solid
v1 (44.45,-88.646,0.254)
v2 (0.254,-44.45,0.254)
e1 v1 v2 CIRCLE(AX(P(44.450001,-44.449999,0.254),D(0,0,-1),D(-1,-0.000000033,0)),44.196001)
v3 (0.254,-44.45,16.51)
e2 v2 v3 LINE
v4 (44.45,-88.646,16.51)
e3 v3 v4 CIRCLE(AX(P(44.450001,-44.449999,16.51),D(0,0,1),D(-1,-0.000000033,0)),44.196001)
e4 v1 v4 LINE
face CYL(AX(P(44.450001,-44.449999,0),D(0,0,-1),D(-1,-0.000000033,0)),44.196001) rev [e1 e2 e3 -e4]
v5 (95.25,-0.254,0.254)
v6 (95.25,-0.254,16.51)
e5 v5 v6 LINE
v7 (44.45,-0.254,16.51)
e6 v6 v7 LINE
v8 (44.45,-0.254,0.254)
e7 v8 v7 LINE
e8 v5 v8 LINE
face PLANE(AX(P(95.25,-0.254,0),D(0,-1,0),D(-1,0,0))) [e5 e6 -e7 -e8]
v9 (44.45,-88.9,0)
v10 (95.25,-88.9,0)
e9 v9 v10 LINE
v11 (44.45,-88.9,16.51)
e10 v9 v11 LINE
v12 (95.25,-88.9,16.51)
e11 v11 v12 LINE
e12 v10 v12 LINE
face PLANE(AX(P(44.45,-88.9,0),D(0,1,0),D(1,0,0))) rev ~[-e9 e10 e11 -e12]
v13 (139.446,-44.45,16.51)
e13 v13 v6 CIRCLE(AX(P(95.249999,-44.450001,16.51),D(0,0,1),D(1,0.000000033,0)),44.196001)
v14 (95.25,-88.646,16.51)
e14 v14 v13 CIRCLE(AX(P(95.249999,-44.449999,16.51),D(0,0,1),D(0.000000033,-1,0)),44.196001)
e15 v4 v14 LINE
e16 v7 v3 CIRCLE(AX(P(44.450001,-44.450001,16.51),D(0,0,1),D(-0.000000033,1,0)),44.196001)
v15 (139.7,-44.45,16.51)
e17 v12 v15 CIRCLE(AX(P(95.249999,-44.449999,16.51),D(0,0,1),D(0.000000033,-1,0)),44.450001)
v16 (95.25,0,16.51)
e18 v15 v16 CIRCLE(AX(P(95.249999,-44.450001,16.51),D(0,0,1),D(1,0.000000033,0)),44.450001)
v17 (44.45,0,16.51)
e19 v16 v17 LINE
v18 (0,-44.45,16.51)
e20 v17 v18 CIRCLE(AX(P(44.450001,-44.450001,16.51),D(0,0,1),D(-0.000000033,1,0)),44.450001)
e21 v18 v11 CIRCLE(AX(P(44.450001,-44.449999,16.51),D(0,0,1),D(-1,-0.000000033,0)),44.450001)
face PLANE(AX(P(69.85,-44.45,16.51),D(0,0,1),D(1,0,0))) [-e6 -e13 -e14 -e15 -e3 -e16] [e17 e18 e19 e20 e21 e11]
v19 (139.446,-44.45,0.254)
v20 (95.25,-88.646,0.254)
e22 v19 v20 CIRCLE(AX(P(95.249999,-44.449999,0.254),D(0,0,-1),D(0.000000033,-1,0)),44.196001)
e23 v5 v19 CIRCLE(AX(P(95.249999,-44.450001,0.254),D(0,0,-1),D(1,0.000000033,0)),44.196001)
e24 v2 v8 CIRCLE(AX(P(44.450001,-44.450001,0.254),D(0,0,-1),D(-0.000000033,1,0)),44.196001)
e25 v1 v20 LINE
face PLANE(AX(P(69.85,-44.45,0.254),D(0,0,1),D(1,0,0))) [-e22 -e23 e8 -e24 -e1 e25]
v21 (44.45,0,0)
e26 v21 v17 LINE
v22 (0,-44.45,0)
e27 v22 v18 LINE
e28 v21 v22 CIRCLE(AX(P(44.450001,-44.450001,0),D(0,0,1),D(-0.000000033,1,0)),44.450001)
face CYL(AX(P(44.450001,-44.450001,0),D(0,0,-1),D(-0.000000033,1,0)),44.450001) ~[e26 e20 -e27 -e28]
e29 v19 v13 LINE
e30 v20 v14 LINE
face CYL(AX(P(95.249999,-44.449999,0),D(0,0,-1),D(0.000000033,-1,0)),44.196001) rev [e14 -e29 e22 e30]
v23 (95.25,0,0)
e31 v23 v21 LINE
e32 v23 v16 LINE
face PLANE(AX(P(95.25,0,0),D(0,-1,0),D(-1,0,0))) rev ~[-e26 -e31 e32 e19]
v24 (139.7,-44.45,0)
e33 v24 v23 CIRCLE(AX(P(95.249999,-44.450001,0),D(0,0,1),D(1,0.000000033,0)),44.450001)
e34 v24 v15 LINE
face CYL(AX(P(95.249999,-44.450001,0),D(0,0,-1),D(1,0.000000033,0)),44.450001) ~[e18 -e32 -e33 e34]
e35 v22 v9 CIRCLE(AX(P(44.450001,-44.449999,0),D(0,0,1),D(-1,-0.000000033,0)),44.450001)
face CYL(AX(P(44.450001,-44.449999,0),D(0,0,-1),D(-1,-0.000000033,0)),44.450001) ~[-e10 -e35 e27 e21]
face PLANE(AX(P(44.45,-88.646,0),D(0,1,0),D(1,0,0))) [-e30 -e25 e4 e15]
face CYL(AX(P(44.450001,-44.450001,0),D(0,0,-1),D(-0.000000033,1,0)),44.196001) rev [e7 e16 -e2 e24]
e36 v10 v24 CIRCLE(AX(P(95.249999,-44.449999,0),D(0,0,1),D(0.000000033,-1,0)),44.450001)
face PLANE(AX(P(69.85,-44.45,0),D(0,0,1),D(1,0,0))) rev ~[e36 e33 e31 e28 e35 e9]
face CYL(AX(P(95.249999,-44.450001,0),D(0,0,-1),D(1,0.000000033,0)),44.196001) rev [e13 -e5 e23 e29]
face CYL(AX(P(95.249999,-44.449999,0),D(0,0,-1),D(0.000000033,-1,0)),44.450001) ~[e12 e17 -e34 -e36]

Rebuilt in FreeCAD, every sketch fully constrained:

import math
import FreeCAD as App
import Part
import Sketcher

V = App.Vector
Q = App.Units.Quantity


def faces_at(feature, points):
    """Names of the faces that lie closest to the given points."""
    faces = feature.Shape.Faces
    near = lambda p: min(range(len(faces)), key=lambda i: faces[i].distToShape(Part.Vertex(*p))[0])
    return sorted({f"Face{near(p) + 1}" for p in points})

doc = App.newDocument("Part")
params = doc.addObject("Spreadsheet::Sheet", "Params")
for row, (alias, value) in enumerate([
    ("sketch1_width", "2 in"),
    ("sketch1_radius", "1.7500001 in"),
    ("pad1_length", "0.65 in"),
    ("thickness_wall", "0.01 in"),
], start=1):
    params.set(f"A{row}", alias)
    params.set(f"B{row}", "=" + value)
    params.setAlias(f"B{row}", alias)

body = doc.addObject("PartDesign::Body", "Body")

# Sketch on XY plane
sketch1 = body.newObject("Sketcher::SketchObject", "Sketch")
sketch1.AttachmentSupport = (doc.getObject("XY_Plane"), [""])
sketch1.MapMode = "FlatFace"
sketch1.addGeometry([
    Part.LineSegment(V(95.25, 0, 0), V(44.45, 0, 0)),  # 0
    Part.ArcOfCircle(Part.Circle(V(44.450001, -44.450001, 0), V(0, 0, 1), 44.450001), math.radians(90.000002), math.radians(179.999998)),  # 1
    Part.ArcOfCircle(Part.Circle(V(44.450001, -44.449999, 0), V(0, 0, 1), 44.450001), math.radians(-179.999998), math.radians(-90.000002)),  # 2
    Part.LineSegment(V(44.45, -88.9, 0), V(95.25, -88.9, 0)),  # 3
    Part.ArcOfCircle(Part.Circle(V(95.249999, -44.449999, 0), V(0, 0, 1), 44.450001), math.radians(-89.999998), math.radians(-0.000002)),  # 4
    Part.ArcOfCircle(Part.Circle(V(95.249999, -44.450001, 0), V(0, 0, 1), 44.450001), math.radians(0.000002), math.radians(89.999998)),  # 5
], False)
sketch1.addConstraint([
    Sketcher.Constraint("Tangent", 0, 2, 1, 1),
    Sketcher.Constraint("Tangent", 1, 2, 2, 1),
    Sketcher.Constraint("Tangent", 2, 2, 3, 1),
    Sketcher.Constraint("Tangent", 3, 2, 4, 1),
    Sketcher.Constraint("Tangent", 4, 2, 5, 1),
    Sketcher.Constraint("Tangent", 5, 2, 0, 1),
    Sketcher.Constraint("Horizontal", 0),
    Sketcher.Constraint("Horizontal", 3),
    Sketcher.Constraint("Equal", 1, 2),
    Sketcher.Constraint("Equal", 2, 4),
    Sketcher.Constraint("PointOnObject", 0, 2, -1),
    Sketcher.Constraint("PointOnObject", 1, 2, -2),
    Sketcher.Constraint("Horizontal", 5, 3, 1, 2),
    Sketcher.Constraint("Horizontal", 1, 2, 4, 2),
    Sketcher.Constraint("DistanceX", 0, 2, 0, 1, Q("2 in")),
    Sketcher.Constraint("Radius", 1, Q("1.7500001 in")),
])
sketch1.setExpression("Constraints[14]", "Params.sketch1_width")
sketch1.setExpression("Constraints[15]", "Params.sketch1_radius")
pad1 = body.newObject("PartDesign::Pad", "Pad")
pad1.Profile = sketch1
pad1.setExpression("Length", "Params.pad1_length")
doc.recompute()

thickness = body.newObject("PartDesign::Thickness", "Thickness")
thickness.Base = (pad1, faces_at(pad1, [(69.85, -44.45, 16.51)]))
thickness.setExpression("Value", "Params.thickness_wall")
thickness.Reversed = True
thickness.Join = "Arc"

doc.recompute()
